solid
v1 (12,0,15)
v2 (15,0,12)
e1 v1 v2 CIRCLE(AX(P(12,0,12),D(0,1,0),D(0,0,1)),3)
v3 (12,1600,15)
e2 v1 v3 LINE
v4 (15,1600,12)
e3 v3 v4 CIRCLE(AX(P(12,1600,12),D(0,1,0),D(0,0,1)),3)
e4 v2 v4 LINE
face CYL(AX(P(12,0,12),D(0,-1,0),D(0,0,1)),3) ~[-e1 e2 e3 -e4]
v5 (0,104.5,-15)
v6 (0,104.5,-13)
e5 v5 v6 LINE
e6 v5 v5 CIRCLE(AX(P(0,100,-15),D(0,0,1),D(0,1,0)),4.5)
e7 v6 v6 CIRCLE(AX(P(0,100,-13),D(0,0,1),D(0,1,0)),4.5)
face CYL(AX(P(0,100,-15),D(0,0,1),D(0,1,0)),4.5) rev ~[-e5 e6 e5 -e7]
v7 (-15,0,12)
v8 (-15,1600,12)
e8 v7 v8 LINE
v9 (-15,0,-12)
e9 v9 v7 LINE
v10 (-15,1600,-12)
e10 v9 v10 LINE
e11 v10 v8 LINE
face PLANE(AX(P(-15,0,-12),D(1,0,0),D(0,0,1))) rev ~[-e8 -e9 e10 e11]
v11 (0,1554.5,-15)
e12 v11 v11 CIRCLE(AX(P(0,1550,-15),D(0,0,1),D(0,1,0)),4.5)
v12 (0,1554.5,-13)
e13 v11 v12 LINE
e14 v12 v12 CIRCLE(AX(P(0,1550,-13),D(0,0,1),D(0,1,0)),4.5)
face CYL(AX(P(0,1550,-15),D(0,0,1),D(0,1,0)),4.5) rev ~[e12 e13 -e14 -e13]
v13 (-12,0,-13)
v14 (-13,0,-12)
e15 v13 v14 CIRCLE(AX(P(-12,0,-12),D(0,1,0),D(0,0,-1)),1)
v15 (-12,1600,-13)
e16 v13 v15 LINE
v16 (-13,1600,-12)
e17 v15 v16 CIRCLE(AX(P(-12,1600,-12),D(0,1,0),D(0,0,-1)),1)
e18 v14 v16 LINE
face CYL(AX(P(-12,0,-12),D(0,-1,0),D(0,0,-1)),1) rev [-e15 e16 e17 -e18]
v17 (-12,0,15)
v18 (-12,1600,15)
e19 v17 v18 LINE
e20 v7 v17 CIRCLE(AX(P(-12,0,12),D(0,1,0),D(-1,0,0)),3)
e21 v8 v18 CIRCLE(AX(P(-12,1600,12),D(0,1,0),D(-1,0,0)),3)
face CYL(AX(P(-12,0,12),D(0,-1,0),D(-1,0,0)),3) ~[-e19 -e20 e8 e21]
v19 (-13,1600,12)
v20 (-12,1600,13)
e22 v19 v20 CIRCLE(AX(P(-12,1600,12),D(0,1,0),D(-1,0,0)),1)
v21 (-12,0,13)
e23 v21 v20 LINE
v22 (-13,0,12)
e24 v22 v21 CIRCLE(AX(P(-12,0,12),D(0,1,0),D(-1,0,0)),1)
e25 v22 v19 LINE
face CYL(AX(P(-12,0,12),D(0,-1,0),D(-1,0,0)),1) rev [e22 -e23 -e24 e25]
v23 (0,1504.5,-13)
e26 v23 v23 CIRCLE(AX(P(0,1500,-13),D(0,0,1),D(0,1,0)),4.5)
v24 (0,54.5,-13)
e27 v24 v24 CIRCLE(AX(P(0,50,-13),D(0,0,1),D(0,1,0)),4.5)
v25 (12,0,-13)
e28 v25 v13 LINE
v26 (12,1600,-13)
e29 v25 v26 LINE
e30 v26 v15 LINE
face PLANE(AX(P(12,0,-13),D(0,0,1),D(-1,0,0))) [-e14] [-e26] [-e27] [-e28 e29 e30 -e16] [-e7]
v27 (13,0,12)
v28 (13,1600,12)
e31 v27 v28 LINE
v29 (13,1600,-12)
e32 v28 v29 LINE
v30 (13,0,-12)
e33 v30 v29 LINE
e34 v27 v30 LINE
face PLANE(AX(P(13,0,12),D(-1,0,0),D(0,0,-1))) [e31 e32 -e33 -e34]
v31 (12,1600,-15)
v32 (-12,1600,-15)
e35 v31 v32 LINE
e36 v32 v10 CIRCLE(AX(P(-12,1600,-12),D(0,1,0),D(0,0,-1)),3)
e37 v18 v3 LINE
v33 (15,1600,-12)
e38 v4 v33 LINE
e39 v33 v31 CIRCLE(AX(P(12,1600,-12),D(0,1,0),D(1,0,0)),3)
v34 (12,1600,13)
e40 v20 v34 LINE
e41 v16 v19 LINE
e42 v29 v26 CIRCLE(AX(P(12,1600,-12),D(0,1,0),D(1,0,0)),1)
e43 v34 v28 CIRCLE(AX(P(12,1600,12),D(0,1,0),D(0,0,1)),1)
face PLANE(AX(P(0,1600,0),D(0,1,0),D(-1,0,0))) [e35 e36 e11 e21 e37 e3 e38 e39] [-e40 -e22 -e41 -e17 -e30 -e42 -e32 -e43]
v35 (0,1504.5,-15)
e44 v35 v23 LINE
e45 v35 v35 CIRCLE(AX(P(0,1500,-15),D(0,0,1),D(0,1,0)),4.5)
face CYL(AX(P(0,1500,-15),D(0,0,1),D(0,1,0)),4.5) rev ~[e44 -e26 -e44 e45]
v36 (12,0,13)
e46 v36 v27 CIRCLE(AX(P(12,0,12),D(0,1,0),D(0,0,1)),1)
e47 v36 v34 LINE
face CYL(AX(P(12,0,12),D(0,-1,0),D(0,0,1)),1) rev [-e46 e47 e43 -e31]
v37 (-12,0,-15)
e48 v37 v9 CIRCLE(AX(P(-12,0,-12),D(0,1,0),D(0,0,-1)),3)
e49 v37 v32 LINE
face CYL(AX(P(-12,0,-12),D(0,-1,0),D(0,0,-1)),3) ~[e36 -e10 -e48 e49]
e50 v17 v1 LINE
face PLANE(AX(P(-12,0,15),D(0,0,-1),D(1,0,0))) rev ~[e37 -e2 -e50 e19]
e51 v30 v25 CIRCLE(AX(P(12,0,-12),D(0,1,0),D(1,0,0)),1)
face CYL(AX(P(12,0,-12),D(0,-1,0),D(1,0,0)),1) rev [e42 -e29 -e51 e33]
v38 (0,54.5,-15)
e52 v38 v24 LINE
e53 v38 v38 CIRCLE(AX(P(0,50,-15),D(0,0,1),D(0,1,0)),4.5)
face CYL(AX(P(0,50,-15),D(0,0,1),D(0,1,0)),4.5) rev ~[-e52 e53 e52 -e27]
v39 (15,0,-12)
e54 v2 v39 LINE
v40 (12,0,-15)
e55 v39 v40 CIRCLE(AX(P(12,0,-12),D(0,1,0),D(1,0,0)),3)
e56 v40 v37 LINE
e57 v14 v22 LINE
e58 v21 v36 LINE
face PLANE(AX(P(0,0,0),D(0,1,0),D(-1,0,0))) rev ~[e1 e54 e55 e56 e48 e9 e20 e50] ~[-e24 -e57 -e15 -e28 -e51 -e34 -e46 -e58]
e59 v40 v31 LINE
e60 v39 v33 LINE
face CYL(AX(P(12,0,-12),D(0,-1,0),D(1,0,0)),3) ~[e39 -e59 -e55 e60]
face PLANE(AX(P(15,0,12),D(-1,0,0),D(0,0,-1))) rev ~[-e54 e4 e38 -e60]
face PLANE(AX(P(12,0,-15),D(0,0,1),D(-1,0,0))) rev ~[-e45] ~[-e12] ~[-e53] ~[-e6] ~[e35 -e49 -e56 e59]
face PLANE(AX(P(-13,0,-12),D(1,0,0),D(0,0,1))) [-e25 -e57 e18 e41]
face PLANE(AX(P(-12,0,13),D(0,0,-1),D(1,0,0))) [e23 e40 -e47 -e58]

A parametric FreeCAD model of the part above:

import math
import FreeCAD as App
import Part
import Sketcher

V = App.Vector

doc = App.newDocument("Part")
body = doc.addObject("PartDesign::Body", "Body")

sketch1 = body.newObject("Sketcher::SketchObject", "Sketch")
sketch1.AttachmentSupport = (doc.getObject("XZ_Plane"), [""])
sketch1.MapMode = "FlatFace"
sketch1.addGeometry(Part.ArcOfCircle(Part.Circle(V(12, -12, 0), V(0, 0, 1), 3), math.radians(-90), math.radians(0)), False)
sketch1.addGeometry(Part.LineSegment(V(12, -15, 0), V(-12, -15, 0)), False)
sketch1.addGeometry(Part.ArcOfCircle(Part.Circle(V(-12, -12, 0), V(0, 0, 1), 3), math.radians(180), math.radians(270)), False)
sketch1.addGeometry(Part.LineSegment(V(-15, -12, 0), V(-15, 12, 0)), False)
sketch1.addGeometry(Part.ArcOfCircle(Part.Circle(V(-12, 12, 0), V(0, 0, 1), 3), math.radians(90), math.radians(180)), False)
sketch1.addGeometry(Part.LineSegment(V(-12, 15, 0), V(12, 15, 0)), False)
sketch1.addGeometry(Part.ArcOfCircle(Part.Circle(V(12, 12, 0), V(0, 0, 1), 3), math.radians(0), math.radians(90)), False)
sketch1.addGeometry(Part.LineSegment(V(15, 12, 0), V(15, -12, 0)), False)
sketch1.addGeometry(Part.LineSegment(V(-13, 12, 0), V(-13, -12, 0)), False)
sketch1.addGeometry(Part.ArcOfCircle(Part.Circle(V(-12, -12, 0), V(0, 0, 1), 1), math.radians(180), math.radians(270)), False)
sketch1.addGeometry(Part.LineSegment(V(-12, -13, 0), V(12, -13, 0)), False)
sketch1.addGeometry(Part.ArcOfCircle(Part.Circle(V(12, -12, 0), V(0, 0, 1), 1), math.radians(-90), math.radians(0)), False)
sketch1.addGeometry(Part.LineSegment(V(13, -12, 0), V(13, 12, 0)), False)
sketch1.addGeometry(Part.ArcOfCircle(Part.Circle(V(12, 12, 0), V(0, 0, 1), 1), math.radians(0), math.radians(90)), False)
sketch1.addGeometry(Part.LineSegment(V(12, 13, 0), V(-12, 13, 0)), False)
sketch1.addGeometry(Part.ArcOfCircle(Part.Circle(V(-12, 12, 0), V(0, 0, 1), 1), math.radians(90), math.radians(180)), False)
sketch1.addConstraint(Sketcher.Constraint("Tangent", 0, 1, 1, 1))
sketch1.addConstraint(Sketcher.Constraint("Tangent", 1, 2, 2, 2))
sketch1.addConstraint(Sketcher.Constraint("Tangent", 2, 1, 3, 1))
sketch1.addConstraint(Sketcher.Constraint("Tangent", 3, 2, 4, 2))
sketch1.addConstraint(Sketcher.Constraint("Tangent", 4, 1, 5, 1))
sketch1.addConstraint(Sketcher.Constraint("Tangent", 5, 2, 6, 2))
sketch1.addConstraint(Sketcher.Constraint("Tangent", 6, 1, 7, 1))
sketch1.addConstraint(Sketcher.Constraint("Tangent", 7, 2, 0, 2))
sketch1.addConstraint(Sketcher.Constraint("Tangent", 8, 2, 9, 1))
sketch1.addConstraint(Sketcher.Constraint("Tangent", 9, 2, 10, 1))
sketch1.addConstraint(Sketcher.Constraint("Tangent", 10, 2, 11, 1))
sketch1.addConstraint(Sketcher.Constraint("Tangent", 11, 2, 12, 1))
sketch1.addConstraint(Sketcher.Constraint("Tangent", 12, 2, 13, 1))
sketch1.addConstraint(Sketcher.Constraint("Tangent", 13, 2, 14, 1))
sketch1.addConstraint(Sketcher.Constraint("Tangent", 14, 2, 15, 1))
sketch1.addConstraint(Sketcher.Constraint("Tangent", 15, 2, 8, 1))
sketch1.addConstraint(Sketcher.Constraint("Horizontal", 1))
sketch1.addConstraint(Sketcher.Constraint("Vertical", 3))
sketch1.addConstraint(Sketcher.Constraint("Horizontal", 5))
sketch1.addConstraint(Sketcher.Constraint("Vertical", 7))
sketch1.addConstraint(Sketcher.Constraint("Vertical", 8))
sketch1.addConstraint(Sketcher.Constraint("Horizontal", 10))
sketch1.addConstraint(Sketcher.Constraint("Vertical", 12))
sketch1.addConstraint(Sketcher.Constraint("Horizontal", 14))
sketch1.addConstraint(Sketcher.Constraint("Coincident", 9, 3, 2, 3))
sketch1.addConstraint(Sketcher.Constraint("Coincident", 11, 3, 0, 3))
sketch1.addConstraint(Sketcher.Constraint("Coincident", 13, 3, 6, 3))
sketch1.addConstraint(Sketcher.Constraint("Equal", 0, 2))
sketch1.addConstraint(Sketcher.Constraint("Equal", 2, 4))
sketch1.addConstraint(Sketcher.Constraint("Equal", 4, 6))
sketch1.addConstraint(Sketcher.Constraint("Equal", 13, 15))
sketch1.addConstraint(Sketcher.Constraint("Symmetric", 0, 3, 4, 3, -1, 1))
sketch1.addConstraint(Sketcher.Constraint("Equal", 14, 3))
sketch1.addConstraint(Sketcher.Constraint("Radius", 9, 1.0))
sketch1.addConstraint(Sketcher.Constraint("Radius", 0, 3.0))
sketch1.addConstraint(Sketcher.Constraint("DistanceX", 1, 2, 1, 1, 24.0))
pad1 = body.newObject("PartDesign::Pad", "Pad")
pad1.Profile = sketch1
pad1.Length = 1600
pad1.Reversed = True

sketch2 = body.newObject("Sketcher::SketchObject", "Sketch001")
sketch2.AttachmentSupport = (doc.getObject("XY_Plane"), [""])
sketch2.MapMode = "FlatFace"
sketch2.AttachmentOffset = App.Placement(V(0, 0, -15), App.Rotation())
sketch2.addGeometry(Part.Circle(V(0, 50, 0), V(0, 0, 1), 4.5), False)
sketch2.addGeometry(Part.Circle(V(0, 100, 0), V(0, 0, 1), 4.5), False)
sketch2.addGeometry(Part.Circle(V(0, 1550, 0), V(0, 0, 1), 4.5), False)
sketch2.addGeometry(Part.Circle(V(0, 1500, 0), V(0, 0, 1), 4.5), False)
sketch2.addConstraint(Sketcher.Constraint("Equal", 0, 1))
sketch2.addConstraint(Sketcher.Constraint("Equal", 1, 2))
sketch2.addConstraint(Sketcher.Constraint("Equal", 2, 3))
sketch2.addConstraint(Sketcher.Constraint("PointOnObject", 0, 3, -2))
sketch2.addConstraint(Sketcher.Constraint("PointOnObject", 1, 3, -2))
sketch2.addConstraint(Sketcher.Constraint("PointOnObject", 2, 3, -2))
sketch2.addConstraint(Sketcher.Constraint("PointOnObject", 3, 3, -2))
sketch2.addConstraint(Sketcher.Constraint("Diameter", 0, 9.0))
sketch2.addConstraint(Sketcher.Constraint("DistanceY", -1, 1, 0, 3, 50.0))
sketch2.addConstraint(Sketcher.Constraint("DistanceY", -1, 1, 1, 3, 100.0))
sketch2.addConstraint(Sketcher.Constraint("DistanceY", -1, 1, 2, 3, 1550.0))
sketch2.addConstraint(Sketcher.Constraint("DistanceY", -1, 1, 3, 3, 1500.0))
doc.recompute()
hole = body.newObject("PartDesign::Hole", "Hole")
hole.Profile = sketch2
hole.ThreadType = "None"
hole.Diameter = 9
hole.DepthType = "Dimension"
hole.Depth = 20.2
hole.DrillPoint = "Angled"
hole.DrillPointAngle = 118
hole.Reversed = True

doc.recompute()
